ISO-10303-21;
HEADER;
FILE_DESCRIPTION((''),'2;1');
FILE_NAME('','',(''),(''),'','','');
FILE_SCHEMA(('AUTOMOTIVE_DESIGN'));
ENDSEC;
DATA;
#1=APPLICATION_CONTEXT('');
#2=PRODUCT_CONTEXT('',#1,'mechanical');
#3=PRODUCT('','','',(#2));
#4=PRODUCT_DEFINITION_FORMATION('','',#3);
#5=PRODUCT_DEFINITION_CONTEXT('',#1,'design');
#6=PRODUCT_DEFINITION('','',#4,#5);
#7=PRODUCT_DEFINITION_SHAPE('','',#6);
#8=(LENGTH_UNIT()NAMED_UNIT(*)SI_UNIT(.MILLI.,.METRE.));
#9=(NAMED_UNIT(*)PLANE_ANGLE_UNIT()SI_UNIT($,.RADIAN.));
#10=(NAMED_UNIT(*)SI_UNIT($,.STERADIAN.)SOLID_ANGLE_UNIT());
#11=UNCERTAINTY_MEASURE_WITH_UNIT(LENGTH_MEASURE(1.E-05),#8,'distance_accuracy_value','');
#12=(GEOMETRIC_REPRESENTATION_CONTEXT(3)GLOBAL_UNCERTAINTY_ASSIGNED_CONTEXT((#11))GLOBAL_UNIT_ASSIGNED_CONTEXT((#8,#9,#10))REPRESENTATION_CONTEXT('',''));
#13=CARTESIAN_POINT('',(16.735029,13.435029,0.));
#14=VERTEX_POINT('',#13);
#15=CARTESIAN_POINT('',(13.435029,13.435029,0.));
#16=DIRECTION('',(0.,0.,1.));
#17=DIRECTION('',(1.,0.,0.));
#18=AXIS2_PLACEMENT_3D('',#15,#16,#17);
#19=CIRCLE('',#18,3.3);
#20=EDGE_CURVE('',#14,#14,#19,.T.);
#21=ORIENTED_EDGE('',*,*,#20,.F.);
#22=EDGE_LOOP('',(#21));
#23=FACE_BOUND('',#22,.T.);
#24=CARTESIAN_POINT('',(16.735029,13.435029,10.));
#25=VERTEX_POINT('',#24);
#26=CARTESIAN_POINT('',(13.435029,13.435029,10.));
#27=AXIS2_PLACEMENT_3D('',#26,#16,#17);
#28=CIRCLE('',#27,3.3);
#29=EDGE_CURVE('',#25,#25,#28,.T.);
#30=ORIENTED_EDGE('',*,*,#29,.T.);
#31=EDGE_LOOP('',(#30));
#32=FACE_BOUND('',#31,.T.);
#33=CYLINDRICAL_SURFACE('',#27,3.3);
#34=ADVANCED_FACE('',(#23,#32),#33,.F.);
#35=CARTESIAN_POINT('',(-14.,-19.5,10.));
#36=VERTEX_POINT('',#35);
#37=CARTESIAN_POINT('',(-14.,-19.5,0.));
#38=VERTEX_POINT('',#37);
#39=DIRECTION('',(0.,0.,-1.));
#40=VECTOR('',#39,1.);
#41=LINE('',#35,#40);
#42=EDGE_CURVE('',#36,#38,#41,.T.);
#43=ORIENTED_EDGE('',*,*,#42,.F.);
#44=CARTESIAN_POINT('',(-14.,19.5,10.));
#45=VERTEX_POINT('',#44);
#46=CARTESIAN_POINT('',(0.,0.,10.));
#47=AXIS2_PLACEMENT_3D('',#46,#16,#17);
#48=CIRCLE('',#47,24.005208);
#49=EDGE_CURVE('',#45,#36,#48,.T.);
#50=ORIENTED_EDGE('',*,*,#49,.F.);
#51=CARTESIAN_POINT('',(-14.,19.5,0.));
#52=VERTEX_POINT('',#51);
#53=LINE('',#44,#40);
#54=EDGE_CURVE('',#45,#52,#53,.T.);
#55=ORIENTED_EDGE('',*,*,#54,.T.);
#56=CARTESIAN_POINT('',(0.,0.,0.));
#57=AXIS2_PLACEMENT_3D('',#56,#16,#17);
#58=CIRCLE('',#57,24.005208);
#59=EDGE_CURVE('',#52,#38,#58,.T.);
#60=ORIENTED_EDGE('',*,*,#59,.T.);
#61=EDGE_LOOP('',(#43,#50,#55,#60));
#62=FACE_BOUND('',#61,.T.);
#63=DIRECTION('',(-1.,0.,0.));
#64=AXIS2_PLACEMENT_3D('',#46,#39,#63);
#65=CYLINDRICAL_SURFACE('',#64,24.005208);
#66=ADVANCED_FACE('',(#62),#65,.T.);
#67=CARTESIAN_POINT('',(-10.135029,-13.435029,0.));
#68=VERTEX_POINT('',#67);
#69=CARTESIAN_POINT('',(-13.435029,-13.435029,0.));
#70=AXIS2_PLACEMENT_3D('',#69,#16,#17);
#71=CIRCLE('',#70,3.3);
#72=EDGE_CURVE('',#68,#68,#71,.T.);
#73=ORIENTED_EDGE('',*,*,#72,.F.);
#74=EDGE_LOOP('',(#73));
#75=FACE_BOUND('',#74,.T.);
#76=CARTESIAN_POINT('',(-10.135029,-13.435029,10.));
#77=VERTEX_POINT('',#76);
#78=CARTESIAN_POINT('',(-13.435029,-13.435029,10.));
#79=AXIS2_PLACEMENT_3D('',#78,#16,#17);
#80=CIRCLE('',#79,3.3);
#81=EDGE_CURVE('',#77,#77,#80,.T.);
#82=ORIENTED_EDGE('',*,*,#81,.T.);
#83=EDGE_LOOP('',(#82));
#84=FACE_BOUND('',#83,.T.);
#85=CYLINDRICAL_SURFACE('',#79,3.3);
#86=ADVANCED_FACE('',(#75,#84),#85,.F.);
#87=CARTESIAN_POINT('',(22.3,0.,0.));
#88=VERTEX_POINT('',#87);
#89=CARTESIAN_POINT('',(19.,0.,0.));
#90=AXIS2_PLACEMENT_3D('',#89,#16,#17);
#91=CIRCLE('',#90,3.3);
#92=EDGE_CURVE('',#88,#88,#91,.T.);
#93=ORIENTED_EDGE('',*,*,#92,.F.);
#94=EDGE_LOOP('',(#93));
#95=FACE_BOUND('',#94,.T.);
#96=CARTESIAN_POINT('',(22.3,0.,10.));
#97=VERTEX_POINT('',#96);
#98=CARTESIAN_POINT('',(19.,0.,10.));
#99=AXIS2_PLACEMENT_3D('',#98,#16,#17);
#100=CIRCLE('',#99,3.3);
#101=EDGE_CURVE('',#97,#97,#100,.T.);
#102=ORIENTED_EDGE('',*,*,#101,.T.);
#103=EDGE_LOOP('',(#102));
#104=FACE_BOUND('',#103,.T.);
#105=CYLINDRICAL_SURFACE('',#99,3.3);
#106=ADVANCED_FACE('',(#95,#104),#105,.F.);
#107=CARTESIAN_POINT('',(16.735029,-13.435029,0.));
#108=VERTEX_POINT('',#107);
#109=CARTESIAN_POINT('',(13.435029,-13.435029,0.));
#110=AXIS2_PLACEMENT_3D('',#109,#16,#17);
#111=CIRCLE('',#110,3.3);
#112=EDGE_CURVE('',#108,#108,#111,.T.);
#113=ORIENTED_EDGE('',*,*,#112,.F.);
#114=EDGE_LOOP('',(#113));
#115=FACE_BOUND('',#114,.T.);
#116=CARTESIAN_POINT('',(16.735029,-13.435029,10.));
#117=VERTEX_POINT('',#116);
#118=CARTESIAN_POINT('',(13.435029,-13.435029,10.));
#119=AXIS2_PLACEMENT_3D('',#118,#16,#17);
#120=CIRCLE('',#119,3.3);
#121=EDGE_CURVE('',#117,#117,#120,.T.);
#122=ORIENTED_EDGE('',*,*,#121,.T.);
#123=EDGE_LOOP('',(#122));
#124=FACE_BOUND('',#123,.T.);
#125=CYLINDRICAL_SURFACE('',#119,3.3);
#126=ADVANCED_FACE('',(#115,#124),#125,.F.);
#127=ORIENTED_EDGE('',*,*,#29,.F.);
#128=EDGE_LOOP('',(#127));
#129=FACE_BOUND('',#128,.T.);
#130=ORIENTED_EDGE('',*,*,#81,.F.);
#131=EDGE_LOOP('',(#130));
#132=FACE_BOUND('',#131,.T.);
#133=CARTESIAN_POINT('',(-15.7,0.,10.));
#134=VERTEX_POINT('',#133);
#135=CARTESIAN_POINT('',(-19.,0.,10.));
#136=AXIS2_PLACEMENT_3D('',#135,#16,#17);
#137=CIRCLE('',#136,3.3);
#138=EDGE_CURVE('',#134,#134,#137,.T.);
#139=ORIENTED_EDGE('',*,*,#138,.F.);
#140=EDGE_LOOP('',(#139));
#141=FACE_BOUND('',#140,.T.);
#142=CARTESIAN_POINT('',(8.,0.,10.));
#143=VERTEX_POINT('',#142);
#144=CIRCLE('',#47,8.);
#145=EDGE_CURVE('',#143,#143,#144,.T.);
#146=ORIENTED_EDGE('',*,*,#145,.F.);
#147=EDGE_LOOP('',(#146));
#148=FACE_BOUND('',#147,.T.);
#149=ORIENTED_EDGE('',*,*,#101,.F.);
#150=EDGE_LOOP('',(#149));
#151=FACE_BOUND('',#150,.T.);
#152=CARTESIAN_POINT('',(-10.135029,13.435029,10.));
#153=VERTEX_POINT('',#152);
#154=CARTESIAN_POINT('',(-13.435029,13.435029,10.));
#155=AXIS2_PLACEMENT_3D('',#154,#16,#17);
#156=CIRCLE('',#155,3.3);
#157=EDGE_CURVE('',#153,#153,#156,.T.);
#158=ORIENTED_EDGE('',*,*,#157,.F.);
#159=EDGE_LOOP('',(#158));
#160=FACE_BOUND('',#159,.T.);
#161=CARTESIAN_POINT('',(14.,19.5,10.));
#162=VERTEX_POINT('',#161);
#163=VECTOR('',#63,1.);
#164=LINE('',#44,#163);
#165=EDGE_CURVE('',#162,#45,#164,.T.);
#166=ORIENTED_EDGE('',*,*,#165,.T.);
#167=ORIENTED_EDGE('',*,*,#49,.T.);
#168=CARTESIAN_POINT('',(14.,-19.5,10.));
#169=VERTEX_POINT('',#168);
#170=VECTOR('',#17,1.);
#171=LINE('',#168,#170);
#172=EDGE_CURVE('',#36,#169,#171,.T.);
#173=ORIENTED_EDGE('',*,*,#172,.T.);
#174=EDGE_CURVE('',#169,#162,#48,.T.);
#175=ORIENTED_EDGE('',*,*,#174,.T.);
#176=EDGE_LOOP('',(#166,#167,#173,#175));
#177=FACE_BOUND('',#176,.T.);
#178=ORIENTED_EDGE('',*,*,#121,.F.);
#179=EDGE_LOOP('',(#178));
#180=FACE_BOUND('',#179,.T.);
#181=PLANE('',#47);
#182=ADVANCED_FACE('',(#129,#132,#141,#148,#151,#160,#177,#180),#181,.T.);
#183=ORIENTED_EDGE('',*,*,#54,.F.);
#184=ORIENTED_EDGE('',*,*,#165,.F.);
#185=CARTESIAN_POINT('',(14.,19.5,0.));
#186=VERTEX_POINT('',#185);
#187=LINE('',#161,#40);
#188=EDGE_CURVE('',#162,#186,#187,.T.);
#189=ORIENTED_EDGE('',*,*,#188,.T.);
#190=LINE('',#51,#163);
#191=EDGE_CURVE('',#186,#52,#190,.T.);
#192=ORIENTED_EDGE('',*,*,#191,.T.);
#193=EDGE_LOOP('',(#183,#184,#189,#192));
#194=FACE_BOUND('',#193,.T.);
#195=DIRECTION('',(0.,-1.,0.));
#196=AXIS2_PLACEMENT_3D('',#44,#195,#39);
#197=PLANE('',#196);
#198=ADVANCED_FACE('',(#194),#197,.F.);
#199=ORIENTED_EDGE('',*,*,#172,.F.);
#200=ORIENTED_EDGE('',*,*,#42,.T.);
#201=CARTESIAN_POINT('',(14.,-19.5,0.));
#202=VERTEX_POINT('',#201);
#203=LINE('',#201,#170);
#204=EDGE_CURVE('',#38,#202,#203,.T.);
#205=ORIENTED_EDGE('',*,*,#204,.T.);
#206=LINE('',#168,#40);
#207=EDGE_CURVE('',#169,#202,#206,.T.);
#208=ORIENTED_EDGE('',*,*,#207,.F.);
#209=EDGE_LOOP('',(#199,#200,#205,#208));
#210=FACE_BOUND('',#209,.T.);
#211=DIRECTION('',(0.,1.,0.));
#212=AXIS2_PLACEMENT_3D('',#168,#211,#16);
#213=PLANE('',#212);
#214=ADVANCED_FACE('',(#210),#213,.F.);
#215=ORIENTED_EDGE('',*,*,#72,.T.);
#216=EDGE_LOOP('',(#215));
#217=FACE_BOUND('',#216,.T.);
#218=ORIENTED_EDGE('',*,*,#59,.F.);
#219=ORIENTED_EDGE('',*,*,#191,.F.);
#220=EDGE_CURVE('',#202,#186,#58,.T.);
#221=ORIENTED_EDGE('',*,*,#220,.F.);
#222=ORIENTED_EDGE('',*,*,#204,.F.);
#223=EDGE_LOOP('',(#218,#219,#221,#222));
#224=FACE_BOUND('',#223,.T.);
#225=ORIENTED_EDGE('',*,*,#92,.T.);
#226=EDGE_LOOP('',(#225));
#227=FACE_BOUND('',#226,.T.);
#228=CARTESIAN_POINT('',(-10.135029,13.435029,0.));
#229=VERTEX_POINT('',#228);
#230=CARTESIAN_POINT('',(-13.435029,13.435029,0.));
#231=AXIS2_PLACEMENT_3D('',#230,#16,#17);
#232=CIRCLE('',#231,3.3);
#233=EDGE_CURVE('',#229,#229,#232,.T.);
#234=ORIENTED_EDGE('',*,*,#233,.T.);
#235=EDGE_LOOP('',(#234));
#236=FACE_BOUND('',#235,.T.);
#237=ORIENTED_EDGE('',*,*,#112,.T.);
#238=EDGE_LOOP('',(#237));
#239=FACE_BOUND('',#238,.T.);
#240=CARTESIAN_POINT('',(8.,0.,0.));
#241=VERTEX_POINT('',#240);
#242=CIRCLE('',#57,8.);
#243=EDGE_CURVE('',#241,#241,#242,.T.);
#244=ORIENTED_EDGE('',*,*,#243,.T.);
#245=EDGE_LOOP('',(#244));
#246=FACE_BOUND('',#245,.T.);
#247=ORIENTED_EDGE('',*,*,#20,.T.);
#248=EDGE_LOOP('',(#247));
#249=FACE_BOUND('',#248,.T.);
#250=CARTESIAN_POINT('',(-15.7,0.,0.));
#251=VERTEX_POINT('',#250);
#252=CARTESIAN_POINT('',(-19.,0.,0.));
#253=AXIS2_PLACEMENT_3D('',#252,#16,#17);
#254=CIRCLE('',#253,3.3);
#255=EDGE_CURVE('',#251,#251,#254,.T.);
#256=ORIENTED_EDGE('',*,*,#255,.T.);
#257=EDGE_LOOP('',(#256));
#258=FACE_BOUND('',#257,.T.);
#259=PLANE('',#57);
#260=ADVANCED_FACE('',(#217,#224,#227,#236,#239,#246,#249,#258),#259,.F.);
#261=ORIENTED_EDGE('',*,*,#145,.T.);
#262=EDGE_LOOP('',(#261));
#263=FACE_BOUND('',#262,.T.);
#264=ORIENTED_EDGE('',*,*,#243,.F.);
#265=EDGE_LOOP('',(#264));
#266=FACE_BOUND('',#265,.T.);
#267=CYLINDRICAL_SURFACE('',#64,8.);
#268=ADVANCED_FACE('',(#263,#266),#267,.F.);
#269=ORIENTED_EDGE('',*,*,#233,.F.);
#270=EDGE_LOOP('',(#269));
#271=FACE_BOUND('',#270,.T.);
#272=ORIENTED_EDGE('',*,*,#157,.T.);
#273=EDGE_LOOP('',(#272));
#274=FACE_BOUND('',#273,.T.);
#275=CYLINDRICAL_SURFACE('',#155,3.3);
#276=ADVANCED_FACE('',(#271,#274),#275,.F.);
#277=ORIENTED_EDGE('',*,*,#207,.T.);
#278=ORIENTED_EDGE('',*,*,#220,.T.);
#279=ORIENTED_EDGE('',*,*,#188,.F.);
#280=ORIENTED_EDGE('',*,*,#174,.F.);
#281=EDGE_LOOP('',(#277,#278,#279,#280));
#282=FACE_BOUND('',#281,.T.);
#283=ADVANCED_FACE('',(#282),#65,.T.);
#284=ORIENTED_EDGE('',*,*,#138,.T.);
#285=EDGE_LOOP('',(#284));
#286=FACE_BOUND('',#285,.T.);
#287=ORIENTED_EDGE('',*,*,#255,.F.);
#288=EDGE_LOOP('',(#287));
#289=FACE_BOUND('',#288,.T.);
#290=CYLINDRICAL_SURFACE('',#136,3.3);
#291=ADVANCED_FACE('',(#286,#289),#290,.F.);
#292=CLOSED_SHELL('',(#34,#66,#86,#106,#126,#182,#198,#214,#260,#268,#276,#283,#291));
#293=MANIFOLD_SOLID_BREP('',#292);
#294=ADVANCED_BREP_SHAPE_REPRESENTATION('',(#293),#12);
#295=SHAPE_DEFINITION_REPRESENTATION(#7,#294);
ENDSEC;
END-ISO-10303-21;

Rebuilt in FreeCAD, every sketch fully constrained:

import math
import FreeCAD as App
import Part
import Sketcher
from FreeCAD import Vector
Q = App.Units.Quantity

doc = App.newDocument("Part")
body = doc.addObject("PartDesign::Body", "Body")

sketch1 = doc.addObject("Sketcher::SketchObject", "Sketch")
body.addObject(sketch1)
sketch1.AttachmentSupport = (doc.XY_Plane, [""])
sketch1.MapMode = "FlatFace"
sketch1.addGeometry([
    Part.LineSegment(Vector(14, 20, 0), Vector(-14, 20, 0)),
    Part.ArcOfCircle(Part.Circle(Vector(0, 0, 0), Vector(0, 0, 1), 24), math.radians(126), math.radians(234)),
    Part.LineSegment(Vector(-14, -20, 0), Vector(14, -20, 0)),
    Part.ArcOfCircle(Part.Circle(Vector(0, 0, 0), Vector(0, 0, 1), 24), math.radians(-54), math.radians(54)),
    Part.Circle(Vector(0, 0, 0), Vector(0, 0, 1), 8),
], False)
sketch1.addConstraint([
    Sketcher.Constraint("Coincident", 0, 2, 1, 1),
    Sketcher.Constraint("Coincident", 1, 2, 2, 1),
    Sketcher.Constraint("Coincident", 2, 2, 3, 1),
    Sketcher.Constraint("Coincident", 3, 2, 0, 1),
    Sketcher.Constraint("Horizontal", 0),
    Sketcher.Constraint("Horizontal", 2),
    Sketcher.Constraint("Coincident", 1, 3, -1, 1),
    Sketcher.Constraint("Coincident", 3, 3, -1, 1),
    Sketcher.Constraint("Coincident", 4, 3, -1, 1),
    Sketcher.Constraint("Equal", 1, 3),
    Sketcher.Constraint("Vertical", 0, 2, 1, 2),
    Sketcher.Constraint("Diameter", 4, Q("16 mm")),
    Sketcher.Constraint("DistanceX", 0, 2, 0, 1, Q("28 mm")),
    Sketcher.Constraint("DistanceY", 1, 2, 0, 2, Q("39 mm")),
])
pad1 = doc.addObject("PartDesign::Pad", "Pad")
body.addObject(pad1)
pad1.Profile = sketch1
pad1.Length = 10

sketch2 = doc.addObject("Sketcher::SketchObject", "Sketch001")
body.addObject(sketch2)
sketch2.AttachmentSupport = (doc.XY_Plane, [""])
sketch2.MapMode = "FlatFace"
sketch2.AttachmentOffset = App.Placement(Vector(0, 0, 10), App.Rotation())
sketch2.addGeometry([
    Part.Circle(Vector(-13.4, 13.4, 0), Vector(0, 0, 1), 3.3),
    Part.Circle(Vector(13.4, 13.4, 0), Vector(0, 0, 1), 3.3),
    Part.Circle(Vector(19, 0, 0), Vector(0, 0, 1), 3.3),
    Part.Circle(Vector(13.4, -13.4, 0), Vector(0, 0, 1), 3.3),
    Part.Circle(Vector(-13.4, -13.4, 0), Vector(0, 0, 1), 3.3),
    Part.Circle(Vector(-19, 0, 0), Vector(0, 0, 1), 3.3),
], False)
sketch2.addConstraint([
    Sketcher.Constraint("Equal", 0, 1),
    Sketcher.Constraint("Equal", 1, 2),
    Sketcher.Constraint("Equal", 2, 3),
    Sketcher.Constraint("Equal", 3, 4),
    Sketcher.Constraint("Equal", 4, 5),
    Sketcher.Constraint("Symmetric", 0, 3, 3, 3, -1, 1),
    Sketcher.Constraint("Symmetric", 1, 3, 4, 3, -1, 1),
    Sketcher.Constraint("Symmetric", 2, 3, 5, 3, -1, 1),
    Sketcher.Constraint("Symmetric", 0, 3, 1, 3, -2),
    Sketcher.Constraint("PointOnObject", 2, 3, -1),
    Sketcher.Constraint("Diameter", 0, Q("6.6 mm")),
    Sketcher.Constraint("DistanceX", -1, 1, 2, 3, Q("19 mm")),
    Sketcher.Constraint("DistanceX", 0, 3, -1, 1, Q("13.435029 mm")),
    Sketcher.Constraint("DistanceY", -1, 1, 0, 3, Q("13.435029 mm")),
])
doc.recompute()
hole = doc.addObject("PartDesign::Hole", "Hole")
body.addObject(hole)
hole.Profile = sketch2
hole.ThreadType = "None"
hole.Diameter = 6.6
hole.DepthType = "ThroughAll"

doc.recompute()
